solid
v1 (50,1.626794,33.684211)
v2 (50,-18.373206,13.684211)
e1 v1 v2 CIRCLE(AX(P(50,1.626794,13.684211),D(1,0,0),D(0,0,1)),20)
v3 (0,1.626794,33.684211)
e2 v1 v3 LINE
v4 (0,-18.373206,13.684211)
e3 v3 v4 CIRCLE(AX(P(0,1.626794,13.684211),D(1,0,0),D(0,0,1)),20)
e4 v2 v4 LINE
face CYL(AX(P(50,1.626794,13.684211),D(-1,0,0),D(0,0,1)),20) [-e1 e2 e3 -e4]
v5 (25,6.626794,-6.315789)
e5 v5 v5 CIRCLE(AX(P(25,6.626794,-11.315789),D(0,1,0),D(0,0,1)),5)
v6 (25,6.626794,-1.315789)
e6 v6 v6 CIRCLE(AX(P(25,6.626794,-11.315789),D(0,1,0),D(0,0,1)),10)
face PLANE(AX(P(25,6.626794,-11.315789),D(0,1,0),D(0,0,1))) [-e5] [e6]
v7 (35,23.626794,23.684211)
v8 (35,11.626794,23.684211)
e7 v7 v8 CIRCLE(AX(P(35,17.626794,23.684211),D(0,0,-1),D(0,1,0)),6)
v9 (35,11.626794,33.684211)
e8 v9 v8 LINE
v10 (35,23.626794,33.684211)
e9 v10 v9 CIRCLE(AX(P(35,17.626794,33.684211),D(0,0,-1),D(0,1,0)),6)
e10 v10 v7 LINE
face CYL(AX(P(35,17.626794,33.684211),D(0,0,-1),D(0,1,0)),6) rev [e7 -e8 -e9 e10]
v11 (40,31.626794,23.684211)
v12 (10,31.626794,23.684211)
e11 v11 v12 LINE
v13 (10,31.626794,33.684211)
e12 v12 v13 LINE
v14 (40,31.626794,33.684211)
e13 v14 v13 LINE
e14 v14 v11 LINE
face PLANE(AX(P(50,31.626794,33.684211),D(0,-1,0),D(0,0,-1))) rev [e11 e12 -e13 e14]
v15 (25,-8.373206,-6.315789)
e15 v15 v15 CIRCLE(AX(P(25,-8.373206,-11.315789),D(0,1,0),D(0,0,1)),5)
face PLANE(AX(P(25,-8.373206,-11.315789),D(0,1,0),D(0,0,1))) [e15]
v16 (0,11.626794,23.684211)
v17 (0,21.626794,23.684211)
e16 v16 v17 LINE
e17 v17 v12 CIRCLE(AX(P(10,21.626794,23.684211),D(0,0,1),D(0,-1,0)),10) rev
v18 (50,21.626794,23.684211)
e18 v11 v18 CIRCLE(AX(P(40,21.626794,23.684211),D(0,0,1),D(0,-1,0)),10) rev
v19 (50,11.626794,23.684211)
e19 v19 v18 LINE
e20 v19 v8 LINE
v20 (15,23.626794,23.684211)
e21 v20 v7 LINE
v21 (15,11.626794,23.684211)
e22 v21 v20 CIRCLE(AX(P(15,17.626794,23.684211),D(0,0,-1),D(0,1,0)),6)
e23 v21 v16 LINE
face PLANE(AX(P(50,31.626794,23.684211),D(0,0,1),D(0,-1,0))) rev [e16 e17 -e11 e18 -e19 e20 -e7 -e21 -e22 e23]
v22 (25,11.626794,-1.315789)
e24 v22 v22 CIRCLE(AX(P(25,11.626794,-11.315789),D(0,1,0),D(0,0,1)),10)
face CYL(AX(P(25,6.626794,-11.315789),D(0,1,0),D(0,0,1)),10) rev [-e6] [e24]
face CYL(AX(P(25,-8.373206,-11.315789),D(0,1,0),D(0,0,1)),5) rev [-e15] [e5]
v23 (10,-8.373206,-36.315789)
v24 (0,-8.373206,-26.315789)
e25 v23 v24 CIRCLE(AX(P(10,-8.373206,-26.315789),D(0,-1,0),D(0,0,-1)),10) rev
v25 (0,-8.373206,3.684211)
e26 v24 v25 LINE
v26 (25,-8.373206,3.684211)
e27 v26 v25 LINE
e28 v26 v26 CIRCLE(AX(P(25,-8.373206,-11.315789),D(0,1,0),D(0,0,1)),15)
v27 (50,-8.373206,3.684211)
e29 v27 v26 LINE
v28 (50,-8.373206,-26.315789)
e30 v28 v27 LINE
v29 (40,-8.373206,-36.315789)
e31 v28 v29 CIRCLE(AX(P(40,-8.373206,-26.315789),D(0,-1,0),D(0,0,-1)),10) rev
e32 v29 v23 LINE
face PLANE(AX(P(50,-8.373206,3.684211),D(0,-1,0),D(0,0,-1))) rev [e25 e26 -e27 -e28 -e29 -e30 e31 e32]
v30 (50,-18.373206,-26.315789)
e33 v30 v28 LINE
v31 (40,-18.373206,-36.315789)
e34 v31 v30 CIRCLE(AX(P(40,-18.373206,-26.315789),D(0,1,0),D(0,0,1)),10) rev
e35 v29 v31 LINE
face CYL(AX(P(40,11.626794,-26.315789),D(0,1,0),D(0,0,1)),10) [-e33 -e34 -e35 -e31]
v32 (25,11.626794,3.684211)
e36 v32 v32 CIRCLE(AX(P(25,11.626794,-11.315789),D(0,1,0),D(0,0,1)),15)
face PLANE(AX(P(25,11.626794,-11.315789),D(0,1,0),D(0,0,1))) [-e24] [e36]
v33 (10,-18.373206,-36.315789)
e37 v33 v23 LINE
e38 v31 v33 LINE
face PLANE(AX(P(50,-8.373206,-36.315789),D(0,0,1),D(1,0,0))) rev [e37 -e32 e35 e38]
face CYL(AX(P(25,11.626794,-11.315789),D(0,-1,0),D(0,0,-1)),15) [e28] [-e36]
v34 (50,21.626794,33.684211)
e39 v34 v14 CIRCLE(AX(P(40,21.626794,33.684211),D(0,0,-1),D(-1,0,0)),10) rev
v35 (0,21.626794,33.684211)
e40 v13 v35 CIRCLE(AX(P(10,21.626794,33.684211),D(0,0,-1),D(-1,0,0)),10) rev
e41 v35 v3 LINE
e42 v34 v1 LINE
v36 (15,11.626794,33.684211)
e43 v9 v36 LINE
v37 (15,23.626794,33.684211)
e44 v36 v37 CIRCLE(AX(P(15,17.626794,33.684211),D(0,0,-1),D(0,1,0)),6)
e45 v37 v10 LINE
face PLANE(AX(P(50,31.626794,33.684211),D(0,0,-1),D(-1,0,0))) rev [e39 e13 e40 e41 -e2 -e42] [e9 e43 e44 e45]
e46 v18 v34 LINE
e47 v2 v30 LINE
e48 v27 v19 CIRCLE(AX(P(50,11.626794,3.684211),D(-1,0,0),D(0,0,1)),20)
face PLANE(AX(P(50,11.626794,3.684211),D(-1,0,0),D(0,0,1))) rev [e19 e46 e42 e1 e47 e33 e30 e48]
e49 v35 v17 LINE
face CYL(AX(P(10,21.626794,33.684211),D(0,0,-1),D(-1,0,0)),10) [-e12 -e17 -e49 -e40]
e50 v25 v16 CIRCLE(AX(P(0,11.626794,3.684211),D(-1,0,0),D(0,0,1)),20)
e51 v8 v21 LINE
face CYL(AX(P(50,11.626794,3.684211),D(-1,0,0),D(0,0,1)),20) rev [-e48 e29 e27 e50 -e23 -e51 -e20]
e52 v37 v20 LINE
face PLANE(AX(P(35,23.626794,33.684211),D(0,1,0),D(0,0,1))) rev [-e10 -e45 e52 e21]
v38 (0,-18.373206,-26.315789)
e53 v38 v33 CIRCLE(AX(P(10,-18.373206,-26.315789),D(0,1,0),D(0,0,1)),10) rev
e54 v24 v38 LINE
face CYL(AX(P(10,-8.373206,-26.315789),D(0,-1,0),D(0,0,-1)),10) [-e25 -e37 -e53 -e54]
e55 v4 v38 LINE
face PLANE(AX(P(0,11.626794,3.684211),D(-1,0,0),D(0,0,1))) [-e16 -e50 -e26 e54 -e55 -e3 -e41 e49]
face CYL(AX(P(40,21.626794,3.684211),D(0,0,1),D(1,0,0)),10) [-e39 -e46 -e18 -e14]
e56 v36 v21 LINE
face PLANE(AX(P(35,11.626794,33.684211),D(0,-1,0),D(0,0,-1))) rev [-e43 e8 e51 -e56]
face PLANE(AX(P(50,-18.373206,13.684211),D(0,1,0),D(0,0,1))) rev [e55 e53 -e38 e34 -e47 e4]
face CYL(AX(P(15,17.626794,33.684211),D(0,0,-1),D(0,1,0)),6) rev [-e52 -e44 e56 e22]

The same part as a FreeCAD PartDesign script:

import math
import FreeCAD as App
import Part
import Sketcher
from FreeCAD import Vector
Q = App.Units.Quantity


def edges_at(feature, points):
    """Names of the edges that pass closest to the given points."""
    edges = feature.Shape.Edges
    near = lambda p: min(range(len(edges)), key=lambda i: edges[i].distToShape(Part.Vertex(*p))[0])
    return sorted({f"Edge{near(p) + 1}" for p in points})

doc = App.newDocument("Part")
params = doc.addObject("Spreadsheet::Sheet", "Params")
for row, (alias, value) in enumerate([
    ("sketch1_radius", "20 mm"),
    ("sketch1_width", "30 mm"),
    ("sketch1_width2", "10 mm"),
    ("sketch1_height", "50 mm"),
    ("pad1_length", "50 mm"),
    ("sketch2_radius", "6 mm"),
    ("sketch2_width", "20 mm"),
    ("fillet_radius", "10 mm"),
    ("fillet2_radius", "10 mm"),
    ("fillet3_radius", "10 mm"),
    ("fillet4_radius", "10 mm"),
    ("sketch3_diameter", "30 mm"),
    ("pad2_length", "20 mm"),
    ("sketch4_diameter", "20 mm"),
    ("pocket2_length", "5 mm"),
    ("sketch5_diameter", "10 mm"),
    ("pocket3_length", "15 mm"),
], start=1):
    params.set(f"A{row}", alias)
    params.set(f"B{row}", "=" + value)
    params.setAlias(f"B{row}", alias)

body = doc.addObject("PartDesign::Body", "Body")

sketch1 = body.newObject("Sketcher::SketchObject", "Sketch")
sketch1.AttachmentSupport = (doc.getObject("YZ_Plane"), [""])
sketch1.MapMode = "FlatFace"
sketch1.addGeometry(Part.LineSegment(Vector(32, 34, 0), Vector(2, 34, 0)), False)
sketch1.addGeometry(Part.ArcOfCircle(Part.Circle(Vector(2, 14, 0), Vector(0, 0, 1), 20), math.radians(90), math.radians(180)), False)
sketch1.addGeometry(Part.LineSegment(Vector(-18, 14, 0), Vector(-18, -36, 0)), False)
sketch1.addGeometry(Part.LineSegment(Vector(-18, -36, 0), Vector(-8, -36, 0)), False)
sketch1.addGeometry(Part.LineSegment(Vector(-8, -36, 0), Vector(-8, 4, 0)), False)
sketch1.addGeometry(Part.ArcOfCircle(Part.Circle(Vector(12, 4, 0), Vector(0, 0, 1), 20), math.radians(90), math.radians(180)), False)
sketch1.addGeometry(Part.LineSegment(Vector(12, 24, 0), Vector(32, 24, 0)), False)
sketch1.addGeometry(Part.LineSegment(Vector(32, 24, 0), Vector(32, 34, 0)), False)
sketch1.addConstraint(Sketcher.Constraint("Tangent", 0, 2, 1, 1))
sketch1.addConstraint(Sketcher.Constraint("Tangent", 1, 2, 2, 1))
sketch1.addConstraint(Sketcher.Constraint("Coincident", 2, 2, 3, 1))
sketch1.addConstraint(Sketcher.Constraint("Coincident", 3, 2, 4, 1))
sketch1.addConstraint(Sketcher.Constraint("Tangent", 4, 2, 5, 2))
sketch1.addConstraint(Sketcher.Constraint("Tangent", 5, 1, 6, 1))
sketch1.addConstraint(Sketcher.Constraint("Coincident", 6, 2, 7, 1))
sketch1.addConstraint(Sketcher.Constraint("Coincident", 7, 2, 0, 1))
sketch1.addConstraint(Sketcher.Constraint("Horizontal", 0))
sketch1.addConstraint(Sketcher.Constraint("Vertical", 2))
sketch1.addConstraint(Sketcher.Constraint("Horizontal", 3))
sketch1.addConstraint(Sketcher.Constraint("Vertical", 4))
sketch1.addConstraint(Sketcher.Constraint("Horizontal", 6))
sketch1.addConstraint(Sketcher.Constraint("Vertical", 7))
sketch1.addConstraint(Sketcher.Constraint("Equal", 1, 5))
sketch1.addConstraint(Sketcher.Constraint("Equal", 3, 7))
sketch1.addConstraint(Sketcher.Constraint("Radius", 1, Q("20 mm")))
sketch1.addConstraint(Sketcher.Constraint("DistanceX", 0, 2, 0, 1, Q("30 mm")))
sketch1.addConstraint(Sketcher.Constraint("DistanceX", 3, 1, 3, 2, Q("10 mm")))
sketch1.addConstraint(Sketcher.Constraint("DistanceY", 2, 2, 2, 1, Q("50 mm")))
sketch1.addConstraint(Sketcher.Constraint("DistanceY", -1, 1, 1, 3, Q("13.684211 mm")))
sketch1.addConstraint(Sketcher.Constraint("DistanceX", -1, 1, 1, 3, Q("1.626794 mm")))
sketch1.setExpression("Constraints[16]", "Params.sketch1_radius")
sketch1.setExpression("Constraints[17]", "Params.sketch1_width")
sketch1.setExpression("Constraints[18]", "Params.sketch1_width2")
sketch1.setExpression("Constraints[19]", "Params.sketch1_height")
pad1 = body.newObject("PartDesign::Pad", "Pad")
pad1.Profile = sketch1
pad1.setExpression("Length", "Params.pad1_length")

sketch2 = body.newObject("Sketcher::SketchObject", "Sketch001")
sketch2.AttachmentSupport = (doc.getObject("XY_Plane"), [""])
sketch2.MapMode = "FlatFace"
sketch2.AttachmentOffset = App.Placement(Vector(0, 0, 23.684211), App.Rotation())
sketch2.addGeometry(Part.LineSegment(Vector(15, 24, 0), Vector(35, 24, 0)), False)
sketch2.addGeometry(Part.ArcOfCircle(Part.Circle(Vector(35, 18, 0), Vector(0, 0, 1), 6), math.radians(-90), math.radians(90)), False)
sketch2.addGeometry(Part.LineSegment(Vector(35, 12, 0), Vector(15, 12, 0)), False)
sketch2.addGeometry(Part.ArcOfCircle(Part.Circle(Vector(15, 18, 0), Vector(0, 0, 1), 6), math.radians(90), math.radians(270)), False)
sketch2.addConstraint(Sketcher.Constraint("Tangent", 0, 2, 1, 2))
sketch2.addConstraint(Sketcher.Constraint("Tangent", 1, 1, 2, 1))
sketch2.addConstraint(Sketcher.Constraint("Tangent", 2, 2, 3, 2))
sketch2.addConstraint(Sketcher.Constraint("Tangent", 3, 1, 0, 1))
sketch2.addConstraint(Sketcher.Constraint("Horizontal", 0))
sketch2.addConstraint(Sketcher.Constraint("Horizontal", 2))
sketch2.addConstraint(Sketcher.Constraint("Radius", 1, Q("6 mm")))
sketch2.addConstraint(Sketcher.Constraint("DistanceX", 0, 1, 0, 2, Q("20 mm")))
sketch2.addConstraint(Sketcher.Constraint("DistanceX", -1, 1, 1, 3, Q("35 mm")))
sketch2.addConstraint(Sketcher.Constraint("DistanceY", -1, 1, 1, 3, Q("17.626794 mm")))
sketch2.setExpression("Constraints[6]", "Params.sketch2_radius")
sketch2.setExpression("Constraints[7]", "Params.sketch2_width")
pocket1 = body.newObject("PartDesign::Pocket", "Pocket")
pocket1.Profile = sketch2
pocket1.Type = "ThroughAll"
pocket1.Reversed = True
doc.recompute()

fillet = body.newObject("PartDesign::Fillet", "Fillet")
fillet.Base = (pocket1, edges_at(pocket1, [(50, 31.627, 28.684)]))
fillet.setExpression("Radius", "Params.fillet_radius")
doc.recompute()

fillet2 = body.newObject("PartDesign::Fillet", "Fillet001")
fillet2.Base = (fillet, edges_at(fillet, [(0, 31.627, 28.684)]))
fillet2.setExpression("Radius", "Params.fillet2_radius")
doc.recompute()

fillet3 = body.newObject("PartDesign::Fillet", "Fillet002")
fillet3.Base = (fillet2, edges_at(fillet2, [(50, -13.373, -36.316)]))
fillet3.setExpression("Radius", "Params.fillet3_radius")
doc.recompute()

fillet4 = body.newObject("PartDesign::Fillet", "Fillet003")
fillet4.Base = (fillet3, edges_at(fillet3, [(0, -13.373, -36.316)]))
fillet4.setExpression("Radius", "Params.fillet4_radius")

sketch3 = body.newObject("Sketcher::SketchObject", "Sketch002")
sketch3.AttachmentSupport = (doc.getObject("XZ_Plane"), [""])
sketch3.MapMode = "FlatFace"
sketch3.AttachmentOffset = App.Placement(Vector(0, 0, 8.373206), App.Rotation())
sketch3.addGeometry(Part.Circle(Vector(25, -11, 0), Vector(0, 0, 1), 15), False)
sketch3.addConstraint(Sketcher.Constraint("Diameter", 0, Q("30 mm")))
sketch3.addConstraint(Sketcher.Constraint("DistanceX", -1, 1, 0, 3, Q("25 mm")))
sketch3.addConstraint(Sketcher.Constraint("DistanceY", 0, 3, -1, 1, Q("11.315789 mm")))
sketch3.setExpression("Constraints[0]", "Params.sketch3_diameter")
pad2 = body.newObject("PartDesign::Pad", "Pad001")
pad2.Profile = sketch3
pad2.setExpression("Length", "Params.pad2_length")
pad2.Reversed = True

sketch4 = body.newObject("Sketcher::SketchObject", "Sketch003")
sketch4.AttachmentSupport = (doc.getObject("XZ_Plane"), [""])
sketch4.MapMode = "FlatFace"
sketch4.AttachmentOffset = App.Placement(Vector(0, 0, -11.626794), App.Rotation())
sketch4.addGeometry(Part.Circle(Vector(25, -11, 0), Vector(0, 0, 1), 10), False)
sketch4.addConstraint(Sketcher.Constraint("Diameter", 0, Q("20 mm")))
sketch4.addConstraint(Sketcher.Constraint("DistanceX", -1, 1, 0, 3, Q("25 mm")))
sketch4.addConstraint(Sketcher.Constraint("DistanceY", 0, 3, -1, 1, Q("11.315789 mm")))
sketch4.setExpression("Constraints[0]", "Params.sketch4_diameter")
pocket2 = body.newObject("PartDesign::Pocket", "Pocket001")
pocket2.Profile = sketch4
pocket2.setExpression("Length", "Params.pocket2_length")
pocket2.Reversed = True

sketch5 = body.newObject("Sketcher::SketchObject", "Sketch004")
sketch5.AttachmentSupport = (doc.getObject("XZ_Plane"), [""])
sketch5.MapMode = "FlatFace"
sketch5.AttachmentOffset = App.Placement(Vector(0, 0, -6.626794), App.Rotation())
sketch5.addGeometry(Part.Circle(Vector(25, -11, 0), Vector(0, 0, 1), 5), False)
sketch5.addConstraint(Sketcher.Constraint("Diameter", 0, Q("10 mm")))
sketch5.addConstraint(Sketcher.Constraint("DistanceX", -1, 1, 0, 3, Q("25 mm")))
sketch5.addConstraint(Sketcher.Constraint("DistanceY", 0, 3, -1, 1, Q("11.315789 mm")))
sketch5.setExpression("Constraints[0]", "Params.sketch5_diameter")
pocket3 = body.newObject("PartDesign::Pocket", "Pocket002")
pocket3.Profile = sketch5
pocket3.setExpression("Length", "Params.pocket3_length")
pocket3.Reversed = True

doc.recompute()
